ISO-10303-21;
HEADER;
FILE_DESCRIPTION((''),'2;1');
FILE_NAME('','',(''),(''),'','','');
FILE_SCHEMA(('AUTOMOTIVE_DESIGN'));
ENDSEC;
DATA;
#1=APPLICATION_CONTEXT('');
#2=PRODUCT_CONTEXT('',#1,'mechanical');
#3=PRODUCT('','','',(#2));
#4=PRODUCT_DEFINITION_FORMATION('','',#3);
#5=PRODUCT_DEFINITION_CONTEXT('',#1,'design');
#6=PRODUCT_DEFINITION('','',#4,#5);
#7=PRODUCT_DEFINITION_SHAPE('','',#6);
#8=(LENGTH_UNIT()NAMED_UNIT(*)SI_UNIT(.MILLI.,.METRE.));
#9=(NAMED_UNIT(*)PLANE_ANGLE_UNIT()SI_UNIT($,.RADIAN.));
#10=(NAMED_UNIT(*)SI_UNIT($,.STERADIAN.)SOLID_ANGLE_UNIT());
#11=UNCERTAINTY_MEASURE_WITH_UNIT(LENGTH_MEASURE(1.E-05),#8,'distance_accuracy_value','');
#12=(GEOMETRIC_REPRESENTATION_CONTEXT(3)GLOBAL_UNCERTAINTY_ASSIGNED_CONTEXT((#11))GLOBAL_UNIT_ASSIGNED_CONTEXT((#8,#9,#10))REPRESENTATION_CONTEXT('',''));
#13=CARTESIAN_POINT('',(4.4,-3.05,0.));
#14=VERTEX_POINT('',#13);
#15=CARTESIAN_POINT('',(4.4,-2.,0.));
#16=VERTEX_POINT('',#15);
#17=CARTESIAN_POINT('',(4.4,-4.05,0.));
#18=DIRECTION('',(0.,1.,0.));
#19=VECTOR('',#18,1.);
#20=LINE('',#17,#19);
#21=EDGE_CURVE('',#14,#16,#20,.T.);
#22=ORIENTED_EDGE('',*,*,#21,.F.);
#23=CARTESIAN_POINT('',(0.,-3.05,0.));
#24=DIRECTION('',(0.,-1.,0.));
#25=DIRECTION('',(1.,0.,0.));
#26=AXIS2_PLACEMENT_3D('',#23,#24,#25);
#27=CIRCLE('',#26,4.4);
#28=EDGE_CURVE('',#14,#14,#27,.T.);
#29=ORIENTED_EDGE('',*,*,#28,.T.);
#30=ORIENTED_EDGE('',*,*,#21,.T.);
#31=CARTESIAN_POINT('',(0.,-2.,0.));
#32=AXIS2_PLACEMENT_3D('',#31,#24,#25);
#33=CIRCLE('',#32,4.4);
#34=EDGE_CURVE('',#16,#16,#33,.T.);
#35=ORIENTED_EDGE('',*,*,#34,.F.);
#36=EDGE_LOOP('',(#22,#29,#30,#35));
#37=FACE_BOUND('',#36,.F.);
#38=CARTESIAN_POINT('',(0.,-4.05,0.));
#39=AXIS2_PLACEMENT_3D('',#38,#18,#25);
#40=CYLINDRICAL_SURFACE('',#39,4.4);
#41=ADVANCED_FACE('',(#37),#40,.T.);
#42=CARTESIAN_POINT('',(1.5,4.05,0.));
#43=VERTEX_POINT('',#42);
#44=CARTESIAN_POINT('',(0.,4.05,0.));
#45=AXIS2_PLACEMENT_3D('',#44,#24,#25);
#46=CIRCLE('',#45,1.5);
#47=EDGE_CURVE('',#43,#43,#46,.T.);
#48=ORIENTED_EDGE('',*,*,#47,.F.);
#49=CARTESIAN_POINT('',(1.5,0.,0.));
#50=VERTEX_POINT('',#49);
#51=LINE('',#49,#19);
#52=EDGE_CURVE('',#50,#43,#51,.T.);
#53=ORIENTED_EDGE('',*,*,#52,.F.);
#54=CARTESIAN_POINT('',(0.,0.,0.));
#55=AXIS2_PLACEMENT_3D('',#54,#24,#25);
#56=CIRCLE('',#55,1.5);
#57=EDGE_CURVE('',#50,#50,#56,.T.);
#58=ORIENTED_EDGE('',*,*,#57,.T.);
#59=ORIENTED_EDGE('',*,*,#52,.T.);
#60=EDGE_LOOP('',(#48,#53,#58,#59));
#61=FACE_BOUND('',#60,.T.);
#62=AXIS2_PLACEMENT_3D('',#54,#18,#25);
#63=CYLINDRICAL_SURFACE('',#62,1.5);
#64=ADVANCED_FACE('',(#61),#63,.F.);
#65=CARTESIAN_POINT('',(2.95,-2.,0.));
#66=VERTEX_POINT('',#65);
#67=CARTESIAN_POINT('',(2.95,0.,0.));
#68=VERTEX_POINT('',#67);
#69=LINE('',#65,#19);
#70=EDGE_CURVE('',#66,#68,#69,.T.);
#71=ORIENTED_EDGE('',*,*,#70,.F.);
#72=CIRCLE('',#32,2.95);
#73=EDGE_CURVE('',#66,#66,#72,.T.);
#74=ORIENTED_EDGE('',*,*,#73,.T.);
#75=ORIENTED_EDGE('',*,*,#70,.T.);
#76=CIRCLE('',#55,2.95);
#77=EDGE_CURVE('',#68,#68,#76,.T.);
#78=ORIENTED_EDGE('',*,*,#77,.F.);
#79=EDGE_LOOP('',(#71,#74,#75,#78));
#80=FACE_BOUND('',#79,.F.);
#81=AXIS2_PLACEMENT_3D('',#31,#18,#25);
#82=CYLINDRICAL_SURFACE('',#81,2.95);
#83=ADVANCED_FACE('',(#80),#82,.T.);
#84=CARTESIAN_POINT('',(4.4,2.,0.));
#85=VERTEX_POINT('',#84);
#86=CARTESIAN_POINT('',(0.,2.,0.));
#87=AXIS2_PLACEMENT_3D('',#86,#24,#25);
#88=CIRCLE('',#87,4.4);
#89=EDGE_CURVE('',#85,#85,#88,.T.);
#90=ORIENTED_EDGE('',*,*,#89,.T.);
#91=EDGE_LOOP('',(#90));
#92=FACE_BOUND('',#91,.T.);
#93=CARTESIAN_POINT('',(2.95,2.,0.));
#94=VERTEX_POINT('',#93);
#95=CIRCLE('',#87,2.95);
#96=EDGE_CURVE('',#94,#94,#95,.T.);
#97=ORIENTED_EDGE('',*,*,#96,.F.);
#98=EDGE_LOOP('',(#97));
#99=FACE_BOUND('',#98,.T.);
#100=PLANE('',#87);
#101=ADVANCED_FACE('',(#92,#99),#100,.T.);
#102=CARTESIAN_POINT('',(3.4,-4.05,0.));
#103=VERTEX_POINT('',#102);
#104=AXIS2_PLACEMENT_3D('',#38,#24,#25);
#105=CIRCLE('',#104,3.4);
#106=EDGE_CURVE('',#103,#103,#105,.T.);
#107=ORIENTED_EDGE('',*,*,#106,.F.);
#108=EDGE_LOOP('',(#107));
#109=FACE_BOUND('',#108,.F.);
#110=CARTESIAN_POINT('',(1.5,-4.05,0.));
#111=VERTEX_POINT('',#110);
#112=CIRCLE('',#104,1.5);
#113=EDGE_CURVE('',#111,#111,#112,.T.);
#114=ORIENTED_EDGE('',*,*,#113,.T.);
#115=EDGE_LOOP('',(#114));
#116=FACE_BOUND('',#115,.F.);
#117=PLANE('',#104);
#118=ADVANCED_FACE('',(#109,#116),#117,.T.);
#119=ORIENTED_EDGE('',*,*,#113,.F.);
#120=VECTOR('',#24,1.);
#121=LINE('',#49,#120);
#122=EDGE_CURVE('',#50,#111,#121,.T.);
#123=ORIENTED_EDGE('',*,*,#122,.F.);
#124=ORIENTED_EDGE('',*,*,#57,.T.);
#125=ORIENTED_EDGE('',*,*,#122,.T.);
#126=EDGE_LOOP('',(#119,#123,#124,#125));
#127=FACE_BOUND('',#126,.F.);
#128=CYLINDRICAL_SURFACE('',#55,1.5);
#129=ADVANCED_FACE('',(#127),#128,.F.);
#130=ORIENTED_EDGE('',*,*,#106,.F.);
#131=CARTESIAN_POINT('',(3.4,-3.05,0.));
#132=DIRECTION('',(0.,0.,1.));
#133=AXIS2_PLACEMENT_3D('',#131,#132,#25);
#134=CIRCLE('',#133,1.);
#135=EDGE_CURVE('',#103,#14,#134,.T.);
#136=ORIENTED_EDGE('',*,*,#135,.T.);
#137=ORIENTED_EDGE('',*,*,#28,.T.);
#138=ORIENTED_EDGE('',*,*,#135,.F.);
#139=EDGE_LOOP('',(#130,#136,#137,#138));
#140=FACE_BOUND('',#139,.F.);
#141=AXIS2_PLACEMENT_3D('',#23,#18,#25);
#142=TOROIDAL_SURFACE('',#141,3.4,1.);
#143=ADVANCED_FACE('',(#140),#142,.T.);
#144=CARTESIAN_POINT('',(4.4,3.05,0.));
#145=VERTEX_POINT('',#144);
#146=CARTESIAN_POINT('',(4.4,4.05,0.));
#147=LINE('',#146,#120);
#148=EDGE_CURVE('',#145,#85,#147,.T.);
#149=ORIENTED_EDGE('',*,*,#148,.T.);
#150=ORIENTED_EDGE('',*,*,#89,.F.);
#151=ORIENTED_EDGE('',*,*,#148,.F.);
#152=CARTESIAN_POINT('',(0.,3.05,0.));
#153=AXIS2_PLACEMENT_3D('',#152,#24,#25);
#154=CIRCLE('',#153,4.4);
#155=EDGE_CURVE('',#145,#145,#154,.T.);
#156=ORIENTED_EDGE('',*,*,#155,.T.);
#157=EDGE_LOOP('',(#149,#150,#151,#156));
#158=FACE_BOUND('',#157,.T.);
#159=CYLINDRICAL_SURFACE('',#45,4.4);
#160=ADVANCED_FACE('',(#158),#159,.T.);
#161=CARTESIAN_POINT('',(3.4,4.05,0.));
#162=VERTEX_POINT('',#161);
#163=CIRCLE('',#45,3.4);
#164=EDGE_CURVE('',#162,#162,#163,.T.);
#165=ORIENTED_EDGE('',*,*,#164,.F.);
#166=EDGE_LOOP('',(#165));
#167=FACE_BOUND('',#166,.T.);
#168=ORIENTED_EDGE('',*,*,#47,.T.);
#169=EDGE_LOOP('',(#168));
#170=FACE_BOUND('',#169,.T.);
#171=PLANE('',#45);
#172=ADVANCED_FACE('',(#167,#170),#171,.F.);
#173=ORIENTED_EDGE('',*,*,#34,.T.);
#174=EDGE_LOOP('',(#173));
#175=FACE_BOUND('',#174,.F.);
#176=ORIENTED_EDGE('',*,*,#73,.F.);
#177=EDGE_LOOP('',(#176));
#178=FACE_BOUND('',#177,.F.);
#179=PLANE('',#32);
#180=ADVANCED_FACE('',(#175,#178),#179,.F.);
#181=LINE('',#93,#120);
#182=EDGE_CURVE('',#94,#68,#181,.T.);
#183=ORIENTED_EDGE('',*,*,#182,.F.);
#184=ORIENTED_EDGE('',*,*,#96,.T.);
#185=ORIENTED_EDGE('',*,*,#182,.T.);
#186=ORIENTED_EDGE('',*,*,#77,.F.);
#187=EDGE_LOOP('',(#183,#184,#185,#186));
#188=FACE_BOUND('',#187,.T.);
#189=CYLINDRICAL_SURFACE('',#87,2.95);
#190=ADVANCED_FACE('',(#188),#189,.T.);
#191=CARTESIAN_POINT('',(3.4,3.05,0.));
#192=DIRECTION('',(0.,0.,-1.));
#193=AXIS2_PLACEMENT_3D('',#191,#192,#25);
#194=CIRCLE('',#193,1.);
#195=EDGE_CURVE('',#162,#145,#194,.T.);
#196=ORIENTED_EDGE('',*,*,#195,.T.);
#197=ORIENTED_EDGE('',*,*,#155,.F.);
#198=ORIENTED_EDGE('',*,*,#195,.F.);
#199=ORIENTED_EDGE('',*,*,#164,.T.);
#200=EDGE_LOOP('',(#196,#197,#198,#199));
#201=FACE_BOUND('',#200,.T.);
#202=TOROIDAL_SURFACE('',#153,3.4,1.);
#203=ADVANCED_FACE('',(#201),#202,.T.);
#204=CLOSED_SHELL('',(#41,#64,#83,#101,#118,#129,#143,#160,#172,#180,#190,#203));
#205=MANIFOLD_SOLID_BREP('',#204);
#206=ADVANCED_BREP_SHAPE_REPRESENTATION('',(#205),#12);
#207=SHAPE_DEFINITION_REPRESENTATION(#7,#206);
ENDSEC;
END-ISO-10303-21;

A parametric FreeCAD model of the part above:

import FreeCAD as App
import Part
import Sketcher

V = App.Vector
Q = App.Units.Quantity


def edges_at(feature, points):
    """Names of the edges that pass closest to the given points."""
    edges = feature.Shape.Edges
    near = lambda p: min(range(len(edges)), key=lambda i: edges[i].distToShape(Part.Vertex(*p))[0])
    return sorted({f"Edge{near(p) + 1}" for p in points})


def add_polygon(sketch, points):
    """Adds a closed chain of lines whose ends are joined by coincident constraints."""
    first, n = sketch.GeometryCount, len(points)
    for a, b in zip(points, points[1:] + points[:1]):
        sketch.addGeometry(Part.LineSegment(App.Vector(*a, 0), App.Vector(*b, 0)), False)
    for i in range(n):
        sketch.addConstraint(Sketcher.Constraint("Coincident", first + i, 2, first + (i + 1) % n, 1))

doc = App.newDocument("Part")
body = doc.addObject("PartDesign::Body", "Body")

# Sketch on XY plane
sketch1 = body.newObject("Sketcher::SketchObject", "Sketch")
sketch1.AttachmentSupport = (doc.getObject("XY_Plane"), [""])
sketch1.MapMode = "FlatFace"
add_polygon(sketch1, [(1.5, 4), (1.5, -4), (4.4, -4), (4.4, -2), (3, -2), (3, 2), (4.4, 2), (4.4, 4)])  # lines 0-7
sketch1.addConstraint([
    Sketcher.Constraint("Vertical", 0),
    Sketcher.Constraint("Horizontal", 1),
    Sketcher.Constraint("Vertical", 2),
    Sketcher.Constraint("Horizontal", 3),
    Sketcher.Constraint("Vertical", 4),
    Sketcher.Constraint("Horizontal", 5),
    Sketcher.Constraint("Vertical", 6),
    Sketcher.Constraint("Horizontal", 7),
    Sketcher.Constraint("Symmetric", 2, 2, 5, 2, -1),
    Sketcher.Constraint("Equal", 2, 6),
    Sketcher.Constraint("DistanceY", 4, 1, 4, 2, Q("4 mm")),
    Sketcher.Constraint("DistanceY", 0, 2, 0, 1, Q("8.1 mm")),
    Sketcher.Constraint("DistanceX", 1, 1, 1, 2, Q("2.9 mm")),
    Sketcher.Constraint("DistanceX", 3, 2, 3, 1, Q("1.45 mm")),
    Sketcher.Constraint("DistanceX", -1, 1, 0, 2, Q("1.5 mm")),
])
revolution = body.newObject("PartDesign::Revolution", "Revolution")
revolution.Profile = sketch1
revolution.ReferenceAxis = (sketch1, ["V_Axis"])
revolution.Angle = 360
doc.recompute()

fillet = body.newObject("PartDesign::Fillet", "Fillet")
fillet.Base = (revolution, edges_at(revolution, [(-4.4, 4.05, 0)]))
fillet.Radius = 1
doc.recompute()

fillet2 = body.newObject("PartDesign::Fillet", "Fillet001")
fillet2.Base = (fillet, edges_at(fillet, [(-4.4, -4.05, 0)]))
fillet2.Radius = 1

doc.recompute()
